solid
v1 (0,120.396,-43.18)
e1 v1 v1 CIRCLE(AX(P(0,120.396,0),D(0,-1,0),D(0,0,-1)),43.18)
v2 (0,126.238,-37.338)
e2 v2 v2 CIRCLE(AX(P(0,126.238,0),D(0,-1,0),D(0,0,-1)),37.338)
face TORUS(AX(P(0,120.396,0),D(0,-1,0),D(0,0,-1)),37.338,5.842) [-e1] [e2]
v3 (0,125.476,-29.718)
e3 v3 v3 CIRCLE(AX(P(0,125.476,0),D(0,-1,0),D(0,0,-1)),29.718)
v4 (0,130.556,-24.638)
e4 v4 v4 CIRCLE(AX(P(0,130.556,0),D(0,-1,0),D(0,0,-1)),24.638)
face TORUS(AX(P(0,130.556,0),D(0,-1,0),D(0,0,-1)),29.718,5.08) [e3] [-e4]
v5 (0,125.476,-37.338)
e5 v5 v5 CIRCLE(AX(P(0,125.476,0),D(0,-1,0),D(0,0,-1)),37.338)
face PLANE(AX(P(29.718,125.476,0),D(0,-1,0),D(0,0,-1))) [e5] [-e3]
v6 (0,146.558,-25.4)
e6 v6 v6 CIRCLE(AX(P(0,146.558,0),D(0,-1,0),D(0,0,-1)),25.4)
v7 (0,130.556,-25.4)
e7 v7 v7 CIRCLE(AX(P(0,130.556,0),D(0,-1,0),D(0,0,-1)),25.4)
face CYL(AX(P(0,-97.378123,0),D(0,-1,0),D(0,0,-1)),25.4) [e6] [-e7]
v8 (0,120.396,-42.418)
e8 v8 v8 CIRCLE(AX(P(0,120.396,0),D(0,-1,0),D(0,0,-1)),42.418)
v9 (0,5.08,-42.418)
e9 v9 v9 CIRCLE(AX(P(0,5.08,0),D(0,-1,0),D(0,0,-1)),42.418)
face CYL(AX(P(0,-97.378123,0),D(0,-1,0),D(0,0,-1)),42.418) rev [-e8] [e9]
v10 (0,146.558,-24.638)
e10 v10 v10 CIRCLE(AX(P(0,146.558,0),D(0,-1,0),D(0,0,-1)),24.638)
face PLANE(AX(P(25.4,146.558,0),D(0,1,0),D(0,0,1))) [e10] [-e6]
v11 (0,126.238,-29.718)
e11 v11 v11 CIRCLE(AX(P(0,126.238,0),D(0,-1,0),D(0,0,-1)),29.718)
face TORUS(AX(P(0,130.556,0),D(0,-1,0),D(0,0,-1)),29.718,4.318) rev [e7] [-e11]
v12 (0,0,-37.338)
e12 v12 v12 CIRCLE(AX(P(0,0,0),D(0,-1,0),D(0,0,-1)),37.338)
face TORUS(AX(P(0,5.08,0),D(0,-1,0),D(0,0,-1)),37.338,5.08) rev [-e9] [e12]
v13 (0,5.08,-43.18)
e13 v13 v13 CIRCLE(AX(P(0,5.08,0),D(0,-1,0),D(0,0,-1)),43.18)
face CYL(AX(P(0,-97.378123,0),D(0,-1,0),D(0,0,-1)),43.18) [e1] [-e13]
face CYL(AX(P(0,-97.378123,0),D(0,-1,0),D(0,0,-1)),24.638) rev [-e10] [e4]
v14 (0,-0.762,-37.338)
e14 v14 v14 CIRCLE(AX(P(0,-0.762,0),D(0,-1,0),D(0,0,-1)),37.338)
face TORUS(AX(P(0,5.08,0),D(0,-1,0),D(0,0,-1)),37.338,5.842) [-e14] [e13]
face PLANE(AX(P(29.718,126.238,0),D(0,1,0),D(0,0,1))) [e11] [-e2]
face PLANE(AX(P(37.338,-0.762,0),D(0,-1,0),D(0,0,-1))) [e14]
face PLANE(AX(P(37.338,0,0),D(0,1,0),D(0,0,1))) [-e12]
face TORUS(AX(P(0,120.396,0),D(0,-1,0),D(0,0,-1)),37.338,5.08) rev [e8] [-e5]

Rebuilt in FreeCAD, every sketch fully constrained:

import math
import FreeCAD as App
import Part
import Sketcher

V = App.Vector
Q = App.Units.Quantity

doc = App.newDocument("Part")
body = doc.addObject("PartDesign::Body", "Body")

sketch1 = body.newObject("Sketcher::SketchObject", "Sketch")
sketch1.AttachmentSupport = (doc.getObject("XY_Plane"), [""])
sketch1.MapMode = "FlatFace"
sketch1.addGeometry([
    Part.LineSegment(V(24.6, 146.6, 0), V(24.6, 130.6, 0)),
    Part.ArcOfCircle(Part.Circle(V(29.7, 130.6, 0), V(0, 0, 1), 5.1), math.radians(-180), math.radians(-90)),
    Part.LineSegment(V(29.7, 125.5, 0), V(37.3, 125.5, 0)),
    Part.ArcOfCircle(Part.Circle(V(37.3, 120.4, 0), V(0, 0, 1), 5.1), math.radians(0), math.radians(90)),
    Part.LineSegment(V(42.4, 120.4, 0), V(42.4, 5.1, 0)),
    Part.ArcOfCircle(Part.Circle(V(37.3, 5.1, 0), V(0, 0, 1), 5.1), math.radians(-90), math.radians(0)),
    Part.LineSegment(V(37.3, 0, 0), V(0, 0, 0)),
    Part.LineSegment(V(0, 0, 0), V(0, -0.8, 0)),
    Part.LineSegment(V(0, -0.8, 0), V(37.3, -0.8, 0)),
    Part.ArcOfCircle(Part.Circle(V(37.3, 5.1, 0), V(0, 0, 1), 5.8), math.radians(-90), math.radians(0)),
    Part.LineSegment(V(43.2, 5.1, 0), V(43.2, 120.4, 0)),
    Part.ArcOfCircle(Part.Circle(V(37.3, 120.4, 0), V(0, 0, 1), 5.8), math.radians(0), math.radians(90)),
    Part.LineSegment(V(37.3, 126.2, 0), V(29.7, 126.2, 0)),
    Part.ArcOfCircle(Part.Circle(V(29.7, 130.6, 0), V(0, 0, 1), 4.3), math.radians(-180), math.radians(-90)),
    Part.LineSegment(V(25.4, 130.6, 0), V(25.4, 146.6, 0)),
    Part.LineSegment(V(25.4, 146.6, 0), V(24.6, 146.6, 0)),
], False)
sketch1.addConstraint([
    Sketcher.Constraint("Tangent", 0, 2, 1, 1),
    Sketcher.Constraint("Tangent", 1, 2, 2, 1),
    Sketcher.Constraint("Tangent", 2, 2, 3, 2),
    Sketcher.Constraint("Tangent", 3, 1, 4, 1),
    Sketcher.Constraint("Tangent", 4, 2, 5, 2),
    Sketcher.Constraint("Tangent", 5, 1, 6, 1),
    Sketcher.Constraint("Coincident", 6, 2, 7, 1),
    Sketcher.Constraint("Coincident", 7, 2, 8, 1),
    Sketcher.Constraint("Tangent", 8, 2, 9, 1),
    Sketcher.Constraint("Tangent", 9, 2, 10, 1),
    Sketcher.Constraint("Tangent", 10, 2, 11, 1),
    Sketcher.Constraint("Tangent", 11, 2, 12, 1),
    Sketcher.Constraint("Tangent", 12, 2, 13, 2),
    Sketcher.Constraint("Tangent", 13, 1, 14, 1),
    Sketcher.Constraint("Coincident", 14, 2, 15, 1),
    Sketcher.Constraint("Coincident", 15, 2, 0, 1),
    Sketcher.Constraint("Vertical", 0),
    Sketcher.Constraint("Horizontal", 2),
    Sketcher.Constraint("Vertical", 4),
    Sketcher.Constraint("Horizontal", 6),
    Sketcher.Constraint("Vertical", 7),
    Sketcher.Constraint("Horizontal", 8),
    Sketcher.Constraint("Vertical", 10),
    Sketcher.Constraint("Horizontal", 12),
    Sketcher.Constraint("Vertical", 14),
    Sketcher.Constraint("Horizontal", 15),
    Sketcher.Constraint("Coincident", 6, 2, -1, 1),
    Sketcher.Constraint("Coincident", 9, 3, 5, 3),
    Sketcher.Constraint("Coincident", 11, 3, 3, 3),
    Sketcher.Constraint("Coincident", 13, 3, 1, 3),
    Sketcher.Constraint("Equal", 1, 3),
    Sketcher.Constraint("Equal", 3, 5),
    Sketcher.Constraint("Radius", 1, Q("0.2 in")),
    Sketcher.Constraint("Radius", 9, Q("0.23 in")),
    Sketcher.Constraint("DistanceX", 2, 1, 2, 2, Q("0.3 in")),
    Sketcher.Constraint("DistanceX", -1, 1, 13, 1, Q("1 in")),
    Sketcher.Constraint("DistanceY", 0, 2, 0, 1, Q("0.63 in")),
    Sketcher.Constraint("DistanceY", 4, 2, 4, 1, Q("4.54 in")),
])
revolution = body.newObject("PartDesign::Revolution", "Revolution")
revolution.Profile = sketch1
revolution.ReferenceAxis = (sketch1, ["V_Axis"])
revolution.Angle = 360

doc.recompute()
